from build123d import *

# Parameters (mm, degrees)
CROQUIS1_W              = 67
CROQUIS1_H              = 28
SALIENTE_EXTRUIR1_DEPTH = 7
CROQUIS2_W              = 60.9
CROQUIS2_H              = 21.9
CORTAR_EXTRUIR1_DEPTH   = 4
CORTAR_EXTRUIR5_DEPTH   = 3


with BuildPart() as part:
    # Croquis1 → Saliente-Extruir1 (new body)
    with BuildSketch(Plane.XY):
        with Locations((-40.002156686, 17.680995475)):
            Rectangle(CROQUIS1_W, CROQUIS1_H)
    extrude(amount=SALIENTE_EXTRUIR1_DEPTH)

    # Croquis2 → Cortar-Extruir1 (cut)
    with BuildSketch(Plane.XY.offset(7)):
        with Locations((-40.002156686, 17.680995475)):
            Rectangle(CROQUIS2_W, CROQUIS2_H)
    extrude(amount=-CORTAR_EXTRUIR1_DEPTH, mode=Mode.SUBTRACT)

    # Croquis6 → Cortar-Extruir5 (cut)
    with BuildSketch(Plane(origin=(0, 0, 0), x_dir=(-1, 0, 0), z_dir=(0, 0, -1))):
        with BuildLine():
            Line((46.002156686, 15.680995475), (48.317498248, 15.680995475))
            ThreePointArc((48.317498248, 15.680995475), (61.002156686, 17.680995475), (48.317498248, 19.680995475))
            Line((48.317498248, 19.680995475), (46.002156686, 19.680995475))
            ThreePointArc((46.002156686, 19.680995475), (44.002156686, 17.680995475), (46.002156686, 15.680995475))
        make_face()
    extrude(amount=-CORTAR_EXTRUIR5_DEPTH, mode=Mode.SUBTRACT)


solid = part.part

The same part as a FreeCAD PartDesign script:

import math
import FreeCAD as App
import Part
import Sketcher
from FreeCAD import Vector
Q = App.Units.Quantity

doc = App.newDocument("Part")
body = doc.addObject("PartDesign::Body", "Body")

# Sketch on XY plane
sketch1 = body.newObject("Sketcher::SketchObject", "Sketch")
sketch1.AttachmentSupport = (doc.getObject("XY_Plane"), [""])
sketch1.MapMode = "FlatFace"
sketch1.addGeometry(Part.LineSegment(Vector(-73.502157, 31.680995, 0), Vector(-73.502157, 3.680995, 0)), False)
sketch1.addGeometry(Part.LineSegment(Vector(-73.502157, 3.680995, 0), Vector(-6.502157, 3.680995, 0)), False)
sketch1.addGeometry(Part.LineSegment(Vector(-6.502157, 3.680995, 0), Vector(-6.502157, 31.680995, 0)), False)
sketch1.addGeometry(Part.LineSegment(Vector(-6.502157, 31.680995, 0), Vector(-73.502157, 31.680995, 0)), False)
sketch1.addConstraint(Sketcher.Constraint("Coincident", 0, 2, 1, 1))
sketch1.addConstraint(Sketcher.Constraint("Coincident", 1, 2, 2, 1))
sketch1.addConstraint(Sketcher.Constraint("Coincident", 2, 2, 3, 1))
sketch1.addConstraint(Sketcher.Constraint("Coincident", 3, 2, 0, 1))
sketch1.addConstraint(Sketcher.Constraint("Vertical", 0))
sketch1.addConstraint(Sketcher.Constraint("Horizontal", 1))
sketch1.addConstraint(Sketcher.Constraint("Vertical", 2))
sketch1.addConstraint(Sketcher.Constraint("Horizontal", 3))
sketch1.addConstraint(Sketcher.Constraint("DistanceX", 1, 1, 1, 2, Q("67 mm")))
sketch1.addConstraint(Sketcher.Constraint("DistanceY", 0, 2, 0, 1, Q("28 mm")))
sketch1.addConstraint(Sketcher.Constraint("DistanceX", 0, 2, -1, 1, Q("73.502157 mm")))
sketch1.addConstraint(Sketcher.Constraint("DistanceY", -1, 1, 0, 2, Q("3.680995 mm")))
pad1 = body.newObject("PartDesign::Pad", "Pad")
pad1.Profile = sketch1
pad1.Length = 7

# Sketch on XY plane
sketch2 = body.newObject("Sketcher::SketchObject", "Sketch001")
sketch2.AttachmentSupport = (doc.getObject("XY_Plane"), [""])
sketch2.MapMode = "FlatFace"
sketch2.AttachmentOffset = App.Placement(Vector(0, 0, 7), App.Rotation())
sketch2.addGeometry(Part.LineSegment(Vector(-70.452157, 28.630995, 0), Vector(-70.452157, 6.730995, 0)), False)
sketch2.addGeometry(Part.LineSegment(Vector(-70.452157, 6.730995, 0), Vector(-9.552157, 6.730995, 0)), False)
sketch2.addGeometry(Part.LineSegment(Vector(-9.552157, 6.730995, 0), Vector(-9.552157, 28.630995, 0)), False)
sketch2.addGeometry(Part.LineSegment(Vector(-9.552157, 28.630995, 0), Vector(-70.452157, 28.630995, 0)), False)
sketch2.addConstraint(Sketcher.Constraint("Coincident", 0, 2, 1, 1))
sketch2.addConstraint(Sketcher.Constraint("Coincident", 1, 2, 2, 1))
sketch2.addConstraint(Sketcher.Constraint("Coincident", 2, 2, 3, 1))
sketch2.addConstraint(Sketcher.Constraint("Coincident", 3, 2, 0, 1))
sketch2.addConstraint(Sketcher.Constraint("Vertical", 0))
sketch2.addConstraint(Sketcher.Constraint("Horizontal", 1))
sketch2.addConstraint(Sketcher.Constraint("Vertical", 2))
sketch2.addConstraint(Sketcher.Constraint("Horizontal", 3))
sketch2.addConstraint(Sketcher.Constraint("DistanceX", 1, 1, 1, 2, Q("60.9 mm")))
sketch2.addConstraint(Sketcher.Constraint("DistanceY", 0, 2, 0, 1, Q("21.9 mm")))
sketch2.addConstraint(Sketcher.Constraint("DistanceX", 0, 2, -1, 1, Q("70.452157 mm")))
sketch2.addConstraint(Sketcher.Constraint("DistanceY", -1, 1, 0, 2, Q("6.730995 mm")))
pocket1 = body.newObject("PartDesign::Pocket", "Pocket")
pocket1.Profile = sketch2
pocket1.Length = 4

# Sketch on XY plane
sketch3 = body.newObject("Sketcher::SketchObject", "Sketch002")
sketch3.AttachmentSupport = (doc.getObject("XY_Plane"), [""])
sketch3.MapMode = "FlatFace"
sketch3.addGeometry(Part.LineSegment(Vector(-46.002157, 15.680995, 0), Vector(-48.317498, 15.680995, 0)), False)
sketch3.addGeometry(Part.ArcOfCircle(Part.Circle(Vector(-54.502157, 17.680995, 0), Vector(0, 0, 1), 6.5), math.radians(17.920213), math.radians(342.079787)), False)
sketch3.addGeometry(Part.LineSegment(Vector(-48.317498, 19.680995, 0), Vector(-46.002157, 19.680995, 0)), False)
sketch3.addGeometry(Part.ArcOfCircle(Part.Circle(Vector(-46.002157, 17.680995, 0), Vector(0, 0, 1), 2), math.radians(-90), math.radians(90)), False)
sketch3.addConstraint(Sketcher.Constraint("Coincident", 0, 2, 1, 2))
sketch3.addConstraint(Sketcher.Constraint("Coincident", 1, 1, 2, 1))
sketch3.addConstraint(Sketcher.Constraint("Tangent", 2, 2, 3, 2))
sketch3.addConstraint(Sketcher.Constraint("Tangent", 3, 1, 0, 1))
sketch3.addConstraint(Sketcher.Constraint("Horizontal", 0))
sketch3.addConstraint(Sketcher.Constraint("Horizontal", 2))
sketch3.addConstraint(Sketcher.Constraint("Horizontal", 1, 3, 3, 3))
sketch3.addConstraint(Sketcher.Constraint("Radius", 3, Q("2 mm")))
sketch3.addConstraint(Sketcher.Constraint("Radius", 1, Q("6.5 mm")))
sketch3.addConstraint(Sketcher.Constraint("DistanceX", 1, 3, 3, 3, Q("8.5 mm")))
sketch3.addConstraint(Sketcher.Constraint("DistanceX", 0, 2, -1, 1, Q("48.317498 mm")))
sketch3.addConstraint(Sketcher.Constraint("DistanceY", -1, 1, 1, 3, Q("17.680995 mm")))
pocket2 = body.newObject("PartDesign::Pocket", "Pocket001")
pocket2.Profile = sketch3
pocket2.Length = 3
pocket2.Reversed = True

doc.recompute()
